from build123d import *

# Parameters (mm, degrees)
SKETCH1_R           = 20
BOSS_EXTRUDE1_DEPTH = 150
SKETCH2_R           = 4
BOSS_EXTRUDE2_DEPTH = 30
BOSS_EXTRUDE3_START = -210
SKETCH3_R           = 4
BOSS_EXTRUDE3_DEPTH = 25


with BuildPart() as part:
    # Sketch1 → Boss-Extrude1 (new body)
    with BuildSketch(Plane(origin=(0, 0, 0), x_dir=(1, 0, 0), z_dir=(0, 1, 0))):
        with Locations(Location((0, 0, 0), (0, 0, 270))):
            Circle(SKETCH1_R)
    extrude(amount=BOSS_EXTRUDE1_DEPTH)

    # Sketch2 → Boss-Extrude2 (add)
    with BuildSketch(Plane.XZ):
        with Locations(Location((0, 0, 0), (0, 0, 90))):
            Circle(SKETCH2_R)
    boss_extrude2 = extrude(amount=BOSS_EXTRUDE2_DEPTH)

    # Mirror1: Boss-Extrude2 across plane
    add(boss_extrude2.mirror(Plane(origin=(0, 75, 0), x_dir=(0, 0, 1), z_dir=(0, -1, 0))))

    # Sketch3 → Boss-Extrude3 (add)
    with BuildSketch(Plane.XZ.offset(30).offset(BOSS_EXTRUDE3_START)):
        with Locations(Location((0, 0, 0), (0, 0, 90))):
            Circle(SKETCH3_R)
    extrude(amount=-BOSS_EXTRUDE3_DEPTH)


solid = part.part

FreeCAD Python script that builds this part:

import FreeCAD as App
import Part
import Sketcher
from FreeCAD import Vector

doc = App.newDocument("Part")
params = doc.addObject("Spreadsheet::Sheet", "Params")
for row, (alias, value) in enumerate([
    ("sketch1_diameter", "40 mm"),
    ("pad1_length", "150 mm"),
    ("sketch2_diameter", "8 mm"),
    ("pad2_length", "30 mm"),
    ("sketch3_diameter", "8 mm"),
    ("pad3_length", "25 mm"),
], start=1):
    params.set(f"A{row}", alias)
    params.set(f"B{row}", "=" + value)
    params.setAlias(f"B{row}", alias)

body = doc.addObject("PartDesign::Body", "Body")

# Sketch on XZ plane
sketch1 = body.newObject("Sketcher::SketchObject", "Sketch")
sketch1.AttachmentSupport = (doc.getObject("XZ_Plane"), [""])
sketch1.MapMode = "FlatFace"
sketch1.addGeometry(Part.Circle(Vector(0, 0, 0), Vector(0, 0, 1), 20), False)
sketch1.addConstraint([
    Sketcher.Constraint("Coincident", 0, 3, -1, 1),
    Sketcher.Constraint("Diameter", 0, 40.0),
])
sketch1.setExpression("Constraints[1]", "Params.sketch1_diameter")
pad1 = body.newObject("PartDesign::Pad", "Pad")
pad1.Profile = sketch1
pad1.setExpression("Length", "Params.pad1_length")
pad1.Reversed = True

# Sketch on XZ plane
sketch2 = body.newObject("Sketcher::SketchObject", "Sketch001")
sketch2.AttachmentSupport = (doc.getObject("XZ_Plane"), [""])
sketch2.MapMode = "FlatFace"
sketch2.addGeometry(Part.Circle(Vector(0, 0, 0), Vector(0, 0, 1), 4), False)
sketch2.addConstraint([
    Sketcher.Constraint("Coincident", 0, 3, -1, 1),
    Sketcher.Constraint("Diameter", 0, 8.0),
])
sketch2.setExpression("Constraints[1]", "Params.sketch2_diameter")
pad2 = body.newObject("PartDesign::Pad", "Pad001")
pad2.Profile = sketch2
pad2.setExpression("Length", "Params.pad2_length")
doc.recompute()

datumplane = body.newObject("PartDesign::Plane", "DatumPlane")
datumplane.AttachmentSupport = (doc.getObject("XZ_Plane"), [""])
datumplane.MapMode = "FlatFace"
datumplane.AttachmentOffset = App.Placement(Vector(0, 0, -75), App.Rotation())
mirrored = body.newObject("PartDesign::Mirrored", "Mirrored")
mirrored.Originals = [pad2]
mirrored.MirrorPlane = (datumplane, [""])
body.Tip = mirrored

# Sketch on XZ plane
sketch3 = body.newObject("Sketcher::SketchObject", "Sketch002")
sketch3.AttachmentSupport = (doc.getObject("XZ_Plane"), [""])
sketch3.MapMode = "FlatFace"
sketch3.AttachmentOffset = App.Placement(Vector(0, 0, -180), App.Rotation())
sketch3.addGeometry(Part.Circle(Vector(0, 0, 0), Vector(0, 0, 1), 4), False)
sketch3.addConstraint([
    Sketcher.Constraint("Coincident", 0, 3, -1, 1),
    Sketcher.Constraint("Diameter", 0, 8.0),
])
sketch3.setExpression("Constraints[1]", "Params.sketch3_diameter")
pad3 = body.newObject("PartDesign::Pad", "Pad002")
pad3.Profile = sketch3
pad3.setExpression("Length", "Params.pad3_length")
pad3.Reversed = True

doc.recompute()
